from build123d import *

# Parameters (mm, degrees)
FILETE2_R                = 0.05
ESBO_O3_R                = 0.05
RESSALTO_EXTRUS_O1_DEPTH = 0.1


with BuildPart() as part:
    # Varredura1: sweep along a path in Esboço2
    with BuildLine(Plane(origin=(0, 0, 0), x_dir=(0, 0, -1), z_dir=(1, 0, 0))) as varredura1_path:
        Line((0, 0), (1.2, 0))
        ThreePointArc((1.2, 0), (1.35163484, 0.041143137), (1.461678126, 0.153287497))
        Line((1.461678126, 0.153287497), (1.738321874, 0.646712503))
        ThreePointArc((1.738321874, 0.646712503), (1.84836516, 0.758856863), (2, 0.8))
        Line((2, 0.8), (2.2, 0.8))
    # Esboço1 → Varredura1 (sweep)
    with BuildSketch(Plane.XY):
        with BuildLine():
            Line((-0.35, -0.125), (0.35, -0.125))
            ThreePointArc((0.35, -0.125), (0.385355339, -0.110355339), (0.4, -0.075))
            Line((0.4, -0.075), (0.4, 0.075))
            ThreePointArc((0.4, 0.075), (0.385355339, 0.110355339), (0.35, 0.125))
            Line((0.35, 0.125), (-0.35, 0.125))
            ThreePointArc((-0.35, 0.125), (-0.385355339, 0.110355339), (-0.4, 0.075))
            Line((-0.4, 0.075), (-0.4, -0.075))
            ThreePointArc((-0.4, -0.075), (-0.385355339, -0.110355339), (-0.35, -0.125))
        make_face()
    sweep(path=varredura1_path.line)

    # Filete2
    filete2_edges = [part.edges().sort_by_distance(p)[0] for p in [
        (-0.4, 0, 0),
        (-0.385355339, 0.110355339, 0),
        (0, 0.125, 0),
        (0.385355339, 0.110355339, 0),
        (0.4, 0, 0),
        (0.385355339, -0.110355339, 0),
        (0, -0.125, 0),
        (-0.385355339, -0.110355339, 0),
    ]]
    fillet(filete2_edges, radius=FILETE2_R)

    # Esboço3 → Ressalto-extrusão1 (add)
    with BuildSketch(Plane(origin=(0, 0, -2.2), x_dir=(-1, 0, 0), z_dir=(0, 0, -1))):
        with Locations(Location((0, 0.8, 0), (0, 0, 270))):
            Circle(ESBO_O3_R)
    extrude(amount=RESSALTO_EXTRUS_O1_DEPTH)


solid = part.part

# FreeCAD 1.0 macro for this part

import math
import FreeCAD as App
import Part
import Sketcher

V = App.Vector


def edges_at(feature, points):
    """Names of the edges that pass closest to the given points."""
    edges = feature.Shape.Edges
    near = lambda p: min(range(len(edges)), key=lambda i: edges[i].distToShape(Part.Vertex(*p))[0])
    return sorted({f"Edge{near(p) + 1}" for p in points})

doc = App.newDocument("Part")
body = doc.addObject("PartDesign::Body", "Body")

# Sketch on XY plane
sketch1 = body.newObject("Sketcher::SketchObject", "Sketch")
sketch1.AttachmentSupport = (doc.getObject("XY_Plane"), [""])
sketch1.MapMode = "FlatFace"
sketch1.addGeometry([
    Part.LineSegment(V(-0.35, -0.125, 0), V(0.35, -0.125, 0)),  # 0
    Part.ArcOfCircle(Part.Circle(V(0.35, -0.075, 0), V(0, 0, 1), 0.05), math.radians(-90), math.radians(0)),  # 1
    Part.LineSegment(V(0.4, -0.075, 0), V(0.4, 0.075, 0)),  # 2
    Part.ArcOfCircle(Part.Circle(V(0.35, 0.075, 0), V(0, 0, 1), 0.05), math.radians(0), math.radians(90)),  # 3
    Part.LineSegment(V(0.35, 0.125, 0), V(-0.35, 0.125, 0)),  # 4
    Part.ArcOfCircle(Part.Circle(V(-0.35, 0.075, 0), V(0, 0, 1), 0.05), math.radians(90), math.radians(180)),  # 5
    Part.LineSegment(V(-0.4, 0.075, 0), V(-0.4, -0.075, 0)),  # 6
    Part.ArcOfCircle(Part.Circle(V(-0.35, -0.075, 0), V(0, 0, 1), 0.05), math.radians(180), math.radians(270)),  # 7
], False)
sketch1.addConstraint([
    Sketcher.Constraint("Tangent", 0, 2, 1, 1),
    Sketcher.Constraint("Tangent", 1, 2, 2, 1),
    Sketcher.Constraint("Tangent", 2, 2, 3, 1),
    Sketcher.Constraint("Tangent", 3, 2, 4, 1),
    Sketcher.Constraint("Tangent", 4, 2, 5, 1),
    Sketcher.Constraint("Tangent", 5, 2, 6, 1),
    Sketcher.Constraint("Tangent", 6, 2, 7, 1),
    Sketcher.Constraint("Tangent", 7, 2, 0, 1),
    Sketcher.Constraint("Horizontal", 0),
    Sketcher.Constraint("Vertical", 2),
    Sketcher.Constraint("Horizontal", 4),
    Sketcher.Constraint("Vertical", 6),
    Sketcher.Constraint("Equal", 1, 3),
    Sketcher.Constraint("Equal", 3, 5),
    Sketcher.Constraint("Equal", 5, 7),
    Sketcher.Constraint("Symmetric", 1, 3, 5, 3, -1, 1),
    Sketcher.Constraint("Radius", 1, 0.05),
    Sketcher.Constraint("DistanceX", 0, 1, 0, 2, 0.7),
    Sketcher.Constraint("DistanceY", 2, 1, 2, 2, 0.15),
])

# Sketch on YZ plane
sketch2 = body.newObject("Sketcher::SketchObject", "Sketch001")
sketch2.AttachmentSupport = (doc.getObject("YZ_Plane"), [""])
sketch2.MapMode = "FlatFace"
sketch2.addGeometry([
    Part.LineSegment(V(0, 0, 0), V(0, -1.2, 0)),  # 0
    Part.ArcOfCircle(Part.Circle(V(0.3, -1.2, 0), V(0, 0, 1), 0.3), math.radians(180), math.radians(240.722387)),  # 1
    Part.LineSegment(V(0.153287, -1.461678, 0), V(0.646713, -1.738322, 0)),  # 2
    Part.ArcOfCircle(Part.Circle(V(0.5, -2, 0), V(0, 0, 1), 0.3), math.radians(0), math.radians(60.722387)),  # 3
    Part.LineSegment(V(0.8, -2, 0), V(0.8, -2.2, 0)),  # 4
], False)
sketch2.addConstraint([
    Sketcher.Constraint("Tangent", 0, 2, 1, 1),
    Sketcher.Constraint("Tangent", 1, 2, 2, 1),
    Sketcher.Constraint("Tangent", 2, 2, 3, 2),
    Sketcher.Constraint("Tangent", 3, 1, 4, 1),
    Sketcher.Constraint("Vertical", 0),
    Sketcher.Constraint("Vertical", 4),
    Sketcher.Constraint("Coincident", 0, 1, -1, 1),
    Sketcher.Constraint("Equal", 1, 3),
    Sketcher.Constraint("Radius", 1, 0.3),
    Sketcher.Constraint("DistanceY", 0, 2, 0, 1, 1.2),
    Sketcher.Constraint("DistanceY", 4, 2, 4, 1, 0.2),
    Sketcher.Constraint("DistanceY", 3, 3, -1, 1, 2.0),
    Sketcher.Constraint("DistanceX", -1, 1, 3, 3, 0.5),
])
doc.recompute()

additivepipe = body.newObject("PartDesign::AdditivePipe", "AdditivePipe")
additivepipe.Profile = sketch1
additivepipe.Spine = (sketch2, ["Edge1", "Edge2", "Edge3", "Edge4", "Edge5"])
doc.recompute()

fillet = body.newObject("PartDesign::Fillet", "Fillet")
fillet.Base = (additivepipe, edges_at(additivepipe, [
    (-0.4, 0, 0),
    (-0.385, 0.11, 0),
    (0, 0.125, 0),
    (0.385, 0.11, 0),
    (0.4, 0, 0),
    (0.385, -0.11, 0),
    (0, -0.125, 0),
    (-0.385, -0.11, 0),
]))
fillet.Radius = 0.05

# Sketch on XY plane
sketch3 = body.newObject("Sketcher::SketchObject", "Sketch002")
sketch3.AttachmentSupport = (doc.getObject("XY_Plane"), [""])
sketch3.MapMode = "FlatFace"
sketch3.AttachmentOffset = App.Placement(V(0, 0, -2.2), App.Rotation())
sketch3.addGeometry(Part.Circle(V(0, 0.8, 0), V(0, 0, 1), 0.05), False)
sketch3.addConstraint([
    Sketcher.Constraint("PointOnObject", 0, 3, -2),
    Sketcher.Constraint("Diameter", 0, 0.1),
    Sketcher.Constraint("DistanceY", -1, 1, 0, 3, 0.8),
])
pad1 = body.newObject("PartDesign::Pad", "Pad")
pad1.Profile = sketch3
pad1.Length = 0.1
pad1.Reversed = True

doc.recompute()
